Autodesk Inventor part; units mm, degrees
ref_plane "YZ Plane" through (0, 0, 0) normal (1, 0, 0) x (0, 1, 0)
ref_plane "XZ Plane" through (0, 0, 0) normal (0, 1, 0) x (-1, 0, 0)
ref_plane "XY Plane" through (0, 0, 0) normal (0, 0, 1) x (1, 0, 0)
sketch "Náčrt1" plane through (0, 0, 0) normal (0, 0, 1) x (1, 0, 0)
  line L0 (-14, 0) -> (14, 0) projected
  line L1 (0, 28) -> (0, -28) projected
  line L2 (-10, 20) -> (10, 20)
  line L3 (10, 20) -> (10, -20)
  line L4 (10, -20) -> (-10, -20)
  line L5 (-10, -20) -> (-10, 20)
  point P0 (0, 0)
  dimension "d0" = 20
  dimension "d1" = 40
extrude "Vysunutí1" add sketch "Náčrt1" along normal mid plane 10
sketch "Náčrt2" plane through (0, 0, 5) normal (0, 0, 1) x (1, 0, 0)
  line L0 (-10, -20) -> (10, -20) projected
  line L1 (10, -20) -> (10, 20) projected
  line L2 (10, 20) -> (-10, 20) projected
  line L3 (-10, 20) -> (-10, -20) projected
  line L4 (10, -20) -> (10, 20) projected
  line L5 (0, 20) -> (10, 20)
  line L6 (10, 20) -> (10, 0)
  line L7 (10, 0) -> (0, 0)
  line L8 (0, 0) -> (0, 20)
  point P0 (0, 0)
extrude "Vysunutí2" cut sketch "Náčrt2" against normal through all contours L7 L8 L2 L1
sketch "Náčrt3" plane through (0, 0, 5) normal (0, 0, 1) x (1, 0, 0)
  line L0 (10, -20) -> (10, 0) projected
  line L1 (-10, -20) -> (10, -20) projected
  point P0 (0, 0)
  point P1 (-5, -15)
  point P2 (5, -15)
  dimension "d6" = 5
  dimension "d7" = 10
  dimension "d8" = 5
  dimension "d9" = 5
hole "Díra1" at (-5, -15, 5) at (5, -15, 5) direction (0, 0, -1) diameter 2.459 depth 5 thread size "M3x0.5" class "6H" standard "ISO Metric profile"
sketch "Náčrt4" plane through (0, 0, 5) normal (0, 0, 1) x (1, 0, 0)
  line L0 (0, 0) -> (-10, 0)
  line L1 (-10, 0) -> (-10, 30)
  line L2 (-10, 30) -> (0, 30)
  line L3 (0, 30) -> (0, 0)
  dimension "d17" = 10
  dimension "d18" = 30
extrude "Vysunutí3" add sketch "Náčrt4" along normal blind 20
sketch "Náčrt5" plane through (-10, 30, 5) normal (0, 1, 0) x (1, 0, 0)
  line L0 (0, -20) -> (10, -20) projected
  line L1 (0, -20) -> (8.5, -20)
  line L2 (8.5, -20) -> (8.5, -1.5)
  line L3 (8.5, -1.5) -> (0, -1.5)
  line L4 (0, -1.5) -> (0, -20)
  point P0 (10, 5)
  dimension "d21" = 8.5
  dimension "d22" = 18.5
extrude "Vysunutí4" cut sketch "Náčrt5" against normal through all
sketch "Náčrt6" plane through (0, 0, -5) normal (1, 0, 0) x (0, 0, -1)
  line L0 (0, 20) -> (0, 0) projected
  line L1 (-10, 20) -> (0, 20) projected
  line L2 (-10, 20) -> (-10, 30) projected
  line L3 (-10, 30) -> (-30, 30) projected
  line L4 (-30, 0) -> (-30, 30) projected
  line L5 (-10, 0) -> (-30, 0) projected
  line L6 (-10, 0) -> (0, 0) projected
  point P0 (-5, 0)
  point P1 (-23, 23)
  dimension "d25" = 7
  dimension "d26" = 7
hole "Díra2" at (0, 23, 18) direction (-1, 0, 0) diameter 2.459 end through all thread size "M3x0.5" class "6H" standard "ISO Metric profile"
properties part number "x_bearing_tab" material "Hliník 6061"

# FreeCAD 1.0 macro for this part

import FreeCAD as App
import Part
import Sketcher

V = App.Vector


def add_polygon(sketch, points):
    """Adds a closed chain of lines whose ends are joined by coincident constraints."""
    first, n = sketch.GeometryCount, len(points)
    for a, b in zip(points, points[1:] + points[:1]):
        sketch.addGeometry(Part.LineSegment(App.Vector(*a, 0), App.Vector(*b, 0)), False)
    for i in range(n):
        sketch.addConstraint(Sketcher.Constraint("Coincident", first + i, 2, first + (i + 1) % n, 1))

doc = App.newDocument("Part")
body = doc.addObject("PartDesign::Body", "Body")

# Sketch on XY plane
sketch1 = body.newObject("Sketcher::SketchObject", "Sketch")
sketch1.AttachmentSupport = (doc.getObject("XY_Plane"), [""])
sketch1.MapMode = "FlatFace"
add_polygon(sketch1, [(-10, 20), (-10, -20), (10, -20), (10, 20)])  # lines 0-3
sketch1.addConstraint([
    Sketcher.Constraint("Vertical", 0),
    Sketcher.Constraint("Horizontal", 1),
    Sketcher.Constraint("Vertical", 2),
    Sketcher.Constraint("Horizontal", 3),
    Sketcher.Constraint("Symmetric", 0, 2, 2, 2, -1, 1),
    Sketcher.Constraint("DistanceX", 1, 1, 1, 2, 20.0),
    Sketcher.Constraint("DistanceY", 0, 2, 0, 1, 40.0),
])
pad1 = body.newObject("PartDesign::Pad", "Pad")
pad1.Profile = sketch1
pad1.Length = 10
pad1.Midplane = True

# Sketch on XY plane
sketch2 = body.newObject("Sketcher::SketchObject", "Sketch001")
sketch2.AttachmentSupport = (doc.getObject("XY_Plane"), [""])
sketch2.MapMode = "FlatFace"
sketch2.AttachmentOffset = App.Placement(V(0, 0, 5), App.Rotation())
add_polygon(sketch2, [(0, 0), (10, 0), (10, 20), (0, 20)])  # lines 0-3
sketch2.addConstraint([
    Sketcher.Constraint("Horizontal", 0),
    Sketcher.Constraint("Vertical", 1),
    Sketcher.Constraint("Horizontal", 2),
    Sketcher.Constraint("Vertical", 3),
    Sketcher.Constraint("Coincident", 3, 2, -1, 1),
    Sketcher.Constraint("DistanceX", 0, 1, 0, 2, 10.0),
    Sketcher.Constraint("DistanceY", 1, 1, 1, 2, 20.0),
])
pocket1 = body.newObject("PartDesign::Pocket", "Pocket")
pocket1.Profile = sketch2
pocket1.Type = "ThroughAll"

# Sketch on XY plane
sketch3 = body.newObject("Sketcher::SketchObject", "Sketch002")
sketch3.AttachmentSupport = (doc.getObject("XY_Plane"), [""])
sketch3.MapMode = "FlatFace"
sketch3.AttachmentOffset = App.Placement(V(0, 0, 5), App.Rotation())
sketch3.addGeometry([
    Part.Circle(V(-5, -15, 0), V(0, 0, 1), 1.2),
    Part.Circle(V(5, -15, 0), V(0, 0, 1), 1.2),
], False)
sketch3.addConstraint([
    Sketcher.Constraint("Equal", 0, 1),
    Sketcher.Constraint("Symmetric", 0, 3, 1, 3, -2),
    Sketcher.Constraint("Diameter", 0, 2.459),
    Sketcher.Constraint("DistanceX", 0, 3, -1, 1, 5.0),
    Sketcher.Constraint("DistanceY", 0, 3, -1, 1, 15.0),
])
doc.recompute()
hole = body.newObject("PartDesign::Hole", "Hole")
hole.Profile = sketch3
hole.ThreadType = "None"
hole.Diameter = 2.459
hole.DepthType = "Dimension"
hole.Depth = 5
hole.DrillPoint = "Flat"

# Sketch on XY plane
sketch4 = body.newObject("Sketcher::SketchObject", "Sketch003")
sketch4.AttachmentSupport = (doc.getObject("XY_Plane"), [""])
sketch4.MapMode = "FlatFace"
sketch4.AttachmentOffset = App.Placement(V(0, 0, 5), App.Rotation())
add_polygon(sketch4, [(-10, 0), (0, 0), (0, 30), (-10, 30)])  # lines 0-3
sketch4.addConstraint([
    Sketcher.Constraint("Horizontal", 0),
    Sketcher.Constraint("Vertical", 1),
    Sketcher.Constraint("Horizontal", 2),
    Sketcher.Constraint("Vertical", 3),
    Sketcher.Constraint("Coincident", 0, 2, -1, 1),
    Sketcher.Constraint("DistanceX", 0, 1, 0, 2, 10.0),
    Sketcher.Constraint("DistanceY", 1, 1, 1, 2, 30.0),
])
pad2 = body.newObject("PartDesign::Pad", "Pad001")
pad2.Profile = sketch4
pad2.Length = 20

# Sketch on XZ plane
sketch5 = body.newObject("Sketcher::SketchObject", "Sketch004")
sketch5.AttachmentSupport = (doc.getObject("XZ_Plane"), [""])
sketch5.MapMode = "FlatFace"
sketch5.AttachmentOffset = App.Placement(V(0, 0, -30), App.Rotation())
add_polygon(sketch5, [(-10, 6), (-10, 25), (-2, 25), (-2, 6)])  # lines 0-3
sketch5.addConstraint([
    Sketcher.Constraint("Vertical", 0),
    Sketcher.Constraint("Horizontal", 1),
    Sketcher.Constraint("Vertical", 2),
    Sketcher.Constraint("Horizontal", 3),
    Sketcher.Constraint("DistanceX", 1, 1, 1, 2, 8.5),
    Sketcher.Constraint("DistanceY", 0, 1, 0, 2, 18.5),
    Sketcher.Constraint("DistanceX", 0, 2, -1, 1, 10.0),
    Sketcher.Constraint("DistanceY", -1, 1, 0, 2, 25.0),
])
pocket2 = body.newObject("PartDesign::Pocket", "Pocket001")
pocket2.Profile = sketch5
pocket2.Type = "ThroughAll"
pocket2.Reversed = True

# Sketch on YZ plane
sketch6 = body.newObject("Sketcher::SketchObject", "Sketch005")
sketch6.AttachmentSupport = (doc.getObject("YZ_Plane"), [""])
sketch6.MapMode = "FlatFace"
sketch6.addGeometry(Part.Circle(V(23, 18, 0), V(0, 0, 1), 1.2), False)
sketch6.addConstraint([
    Sketcher.Constraint("Diameter", 0, 2.459),
    Sketcher.Constraint("DistanceX", -1, 1, 0, 3, 23.0),
    Sketcher.Constraint("DistanceY", -1, 1, 0, 3, 18.0),
])
doc.recompute()
hole2 = body.newObject("PartDesign::Hole", "Hole001")
hole2.Profile = sketch6
hole2.ThreadType = "None"
hole2.Diameter = 2.459
hole2.DepthType = "ThroughAll"

doc.recompute()
